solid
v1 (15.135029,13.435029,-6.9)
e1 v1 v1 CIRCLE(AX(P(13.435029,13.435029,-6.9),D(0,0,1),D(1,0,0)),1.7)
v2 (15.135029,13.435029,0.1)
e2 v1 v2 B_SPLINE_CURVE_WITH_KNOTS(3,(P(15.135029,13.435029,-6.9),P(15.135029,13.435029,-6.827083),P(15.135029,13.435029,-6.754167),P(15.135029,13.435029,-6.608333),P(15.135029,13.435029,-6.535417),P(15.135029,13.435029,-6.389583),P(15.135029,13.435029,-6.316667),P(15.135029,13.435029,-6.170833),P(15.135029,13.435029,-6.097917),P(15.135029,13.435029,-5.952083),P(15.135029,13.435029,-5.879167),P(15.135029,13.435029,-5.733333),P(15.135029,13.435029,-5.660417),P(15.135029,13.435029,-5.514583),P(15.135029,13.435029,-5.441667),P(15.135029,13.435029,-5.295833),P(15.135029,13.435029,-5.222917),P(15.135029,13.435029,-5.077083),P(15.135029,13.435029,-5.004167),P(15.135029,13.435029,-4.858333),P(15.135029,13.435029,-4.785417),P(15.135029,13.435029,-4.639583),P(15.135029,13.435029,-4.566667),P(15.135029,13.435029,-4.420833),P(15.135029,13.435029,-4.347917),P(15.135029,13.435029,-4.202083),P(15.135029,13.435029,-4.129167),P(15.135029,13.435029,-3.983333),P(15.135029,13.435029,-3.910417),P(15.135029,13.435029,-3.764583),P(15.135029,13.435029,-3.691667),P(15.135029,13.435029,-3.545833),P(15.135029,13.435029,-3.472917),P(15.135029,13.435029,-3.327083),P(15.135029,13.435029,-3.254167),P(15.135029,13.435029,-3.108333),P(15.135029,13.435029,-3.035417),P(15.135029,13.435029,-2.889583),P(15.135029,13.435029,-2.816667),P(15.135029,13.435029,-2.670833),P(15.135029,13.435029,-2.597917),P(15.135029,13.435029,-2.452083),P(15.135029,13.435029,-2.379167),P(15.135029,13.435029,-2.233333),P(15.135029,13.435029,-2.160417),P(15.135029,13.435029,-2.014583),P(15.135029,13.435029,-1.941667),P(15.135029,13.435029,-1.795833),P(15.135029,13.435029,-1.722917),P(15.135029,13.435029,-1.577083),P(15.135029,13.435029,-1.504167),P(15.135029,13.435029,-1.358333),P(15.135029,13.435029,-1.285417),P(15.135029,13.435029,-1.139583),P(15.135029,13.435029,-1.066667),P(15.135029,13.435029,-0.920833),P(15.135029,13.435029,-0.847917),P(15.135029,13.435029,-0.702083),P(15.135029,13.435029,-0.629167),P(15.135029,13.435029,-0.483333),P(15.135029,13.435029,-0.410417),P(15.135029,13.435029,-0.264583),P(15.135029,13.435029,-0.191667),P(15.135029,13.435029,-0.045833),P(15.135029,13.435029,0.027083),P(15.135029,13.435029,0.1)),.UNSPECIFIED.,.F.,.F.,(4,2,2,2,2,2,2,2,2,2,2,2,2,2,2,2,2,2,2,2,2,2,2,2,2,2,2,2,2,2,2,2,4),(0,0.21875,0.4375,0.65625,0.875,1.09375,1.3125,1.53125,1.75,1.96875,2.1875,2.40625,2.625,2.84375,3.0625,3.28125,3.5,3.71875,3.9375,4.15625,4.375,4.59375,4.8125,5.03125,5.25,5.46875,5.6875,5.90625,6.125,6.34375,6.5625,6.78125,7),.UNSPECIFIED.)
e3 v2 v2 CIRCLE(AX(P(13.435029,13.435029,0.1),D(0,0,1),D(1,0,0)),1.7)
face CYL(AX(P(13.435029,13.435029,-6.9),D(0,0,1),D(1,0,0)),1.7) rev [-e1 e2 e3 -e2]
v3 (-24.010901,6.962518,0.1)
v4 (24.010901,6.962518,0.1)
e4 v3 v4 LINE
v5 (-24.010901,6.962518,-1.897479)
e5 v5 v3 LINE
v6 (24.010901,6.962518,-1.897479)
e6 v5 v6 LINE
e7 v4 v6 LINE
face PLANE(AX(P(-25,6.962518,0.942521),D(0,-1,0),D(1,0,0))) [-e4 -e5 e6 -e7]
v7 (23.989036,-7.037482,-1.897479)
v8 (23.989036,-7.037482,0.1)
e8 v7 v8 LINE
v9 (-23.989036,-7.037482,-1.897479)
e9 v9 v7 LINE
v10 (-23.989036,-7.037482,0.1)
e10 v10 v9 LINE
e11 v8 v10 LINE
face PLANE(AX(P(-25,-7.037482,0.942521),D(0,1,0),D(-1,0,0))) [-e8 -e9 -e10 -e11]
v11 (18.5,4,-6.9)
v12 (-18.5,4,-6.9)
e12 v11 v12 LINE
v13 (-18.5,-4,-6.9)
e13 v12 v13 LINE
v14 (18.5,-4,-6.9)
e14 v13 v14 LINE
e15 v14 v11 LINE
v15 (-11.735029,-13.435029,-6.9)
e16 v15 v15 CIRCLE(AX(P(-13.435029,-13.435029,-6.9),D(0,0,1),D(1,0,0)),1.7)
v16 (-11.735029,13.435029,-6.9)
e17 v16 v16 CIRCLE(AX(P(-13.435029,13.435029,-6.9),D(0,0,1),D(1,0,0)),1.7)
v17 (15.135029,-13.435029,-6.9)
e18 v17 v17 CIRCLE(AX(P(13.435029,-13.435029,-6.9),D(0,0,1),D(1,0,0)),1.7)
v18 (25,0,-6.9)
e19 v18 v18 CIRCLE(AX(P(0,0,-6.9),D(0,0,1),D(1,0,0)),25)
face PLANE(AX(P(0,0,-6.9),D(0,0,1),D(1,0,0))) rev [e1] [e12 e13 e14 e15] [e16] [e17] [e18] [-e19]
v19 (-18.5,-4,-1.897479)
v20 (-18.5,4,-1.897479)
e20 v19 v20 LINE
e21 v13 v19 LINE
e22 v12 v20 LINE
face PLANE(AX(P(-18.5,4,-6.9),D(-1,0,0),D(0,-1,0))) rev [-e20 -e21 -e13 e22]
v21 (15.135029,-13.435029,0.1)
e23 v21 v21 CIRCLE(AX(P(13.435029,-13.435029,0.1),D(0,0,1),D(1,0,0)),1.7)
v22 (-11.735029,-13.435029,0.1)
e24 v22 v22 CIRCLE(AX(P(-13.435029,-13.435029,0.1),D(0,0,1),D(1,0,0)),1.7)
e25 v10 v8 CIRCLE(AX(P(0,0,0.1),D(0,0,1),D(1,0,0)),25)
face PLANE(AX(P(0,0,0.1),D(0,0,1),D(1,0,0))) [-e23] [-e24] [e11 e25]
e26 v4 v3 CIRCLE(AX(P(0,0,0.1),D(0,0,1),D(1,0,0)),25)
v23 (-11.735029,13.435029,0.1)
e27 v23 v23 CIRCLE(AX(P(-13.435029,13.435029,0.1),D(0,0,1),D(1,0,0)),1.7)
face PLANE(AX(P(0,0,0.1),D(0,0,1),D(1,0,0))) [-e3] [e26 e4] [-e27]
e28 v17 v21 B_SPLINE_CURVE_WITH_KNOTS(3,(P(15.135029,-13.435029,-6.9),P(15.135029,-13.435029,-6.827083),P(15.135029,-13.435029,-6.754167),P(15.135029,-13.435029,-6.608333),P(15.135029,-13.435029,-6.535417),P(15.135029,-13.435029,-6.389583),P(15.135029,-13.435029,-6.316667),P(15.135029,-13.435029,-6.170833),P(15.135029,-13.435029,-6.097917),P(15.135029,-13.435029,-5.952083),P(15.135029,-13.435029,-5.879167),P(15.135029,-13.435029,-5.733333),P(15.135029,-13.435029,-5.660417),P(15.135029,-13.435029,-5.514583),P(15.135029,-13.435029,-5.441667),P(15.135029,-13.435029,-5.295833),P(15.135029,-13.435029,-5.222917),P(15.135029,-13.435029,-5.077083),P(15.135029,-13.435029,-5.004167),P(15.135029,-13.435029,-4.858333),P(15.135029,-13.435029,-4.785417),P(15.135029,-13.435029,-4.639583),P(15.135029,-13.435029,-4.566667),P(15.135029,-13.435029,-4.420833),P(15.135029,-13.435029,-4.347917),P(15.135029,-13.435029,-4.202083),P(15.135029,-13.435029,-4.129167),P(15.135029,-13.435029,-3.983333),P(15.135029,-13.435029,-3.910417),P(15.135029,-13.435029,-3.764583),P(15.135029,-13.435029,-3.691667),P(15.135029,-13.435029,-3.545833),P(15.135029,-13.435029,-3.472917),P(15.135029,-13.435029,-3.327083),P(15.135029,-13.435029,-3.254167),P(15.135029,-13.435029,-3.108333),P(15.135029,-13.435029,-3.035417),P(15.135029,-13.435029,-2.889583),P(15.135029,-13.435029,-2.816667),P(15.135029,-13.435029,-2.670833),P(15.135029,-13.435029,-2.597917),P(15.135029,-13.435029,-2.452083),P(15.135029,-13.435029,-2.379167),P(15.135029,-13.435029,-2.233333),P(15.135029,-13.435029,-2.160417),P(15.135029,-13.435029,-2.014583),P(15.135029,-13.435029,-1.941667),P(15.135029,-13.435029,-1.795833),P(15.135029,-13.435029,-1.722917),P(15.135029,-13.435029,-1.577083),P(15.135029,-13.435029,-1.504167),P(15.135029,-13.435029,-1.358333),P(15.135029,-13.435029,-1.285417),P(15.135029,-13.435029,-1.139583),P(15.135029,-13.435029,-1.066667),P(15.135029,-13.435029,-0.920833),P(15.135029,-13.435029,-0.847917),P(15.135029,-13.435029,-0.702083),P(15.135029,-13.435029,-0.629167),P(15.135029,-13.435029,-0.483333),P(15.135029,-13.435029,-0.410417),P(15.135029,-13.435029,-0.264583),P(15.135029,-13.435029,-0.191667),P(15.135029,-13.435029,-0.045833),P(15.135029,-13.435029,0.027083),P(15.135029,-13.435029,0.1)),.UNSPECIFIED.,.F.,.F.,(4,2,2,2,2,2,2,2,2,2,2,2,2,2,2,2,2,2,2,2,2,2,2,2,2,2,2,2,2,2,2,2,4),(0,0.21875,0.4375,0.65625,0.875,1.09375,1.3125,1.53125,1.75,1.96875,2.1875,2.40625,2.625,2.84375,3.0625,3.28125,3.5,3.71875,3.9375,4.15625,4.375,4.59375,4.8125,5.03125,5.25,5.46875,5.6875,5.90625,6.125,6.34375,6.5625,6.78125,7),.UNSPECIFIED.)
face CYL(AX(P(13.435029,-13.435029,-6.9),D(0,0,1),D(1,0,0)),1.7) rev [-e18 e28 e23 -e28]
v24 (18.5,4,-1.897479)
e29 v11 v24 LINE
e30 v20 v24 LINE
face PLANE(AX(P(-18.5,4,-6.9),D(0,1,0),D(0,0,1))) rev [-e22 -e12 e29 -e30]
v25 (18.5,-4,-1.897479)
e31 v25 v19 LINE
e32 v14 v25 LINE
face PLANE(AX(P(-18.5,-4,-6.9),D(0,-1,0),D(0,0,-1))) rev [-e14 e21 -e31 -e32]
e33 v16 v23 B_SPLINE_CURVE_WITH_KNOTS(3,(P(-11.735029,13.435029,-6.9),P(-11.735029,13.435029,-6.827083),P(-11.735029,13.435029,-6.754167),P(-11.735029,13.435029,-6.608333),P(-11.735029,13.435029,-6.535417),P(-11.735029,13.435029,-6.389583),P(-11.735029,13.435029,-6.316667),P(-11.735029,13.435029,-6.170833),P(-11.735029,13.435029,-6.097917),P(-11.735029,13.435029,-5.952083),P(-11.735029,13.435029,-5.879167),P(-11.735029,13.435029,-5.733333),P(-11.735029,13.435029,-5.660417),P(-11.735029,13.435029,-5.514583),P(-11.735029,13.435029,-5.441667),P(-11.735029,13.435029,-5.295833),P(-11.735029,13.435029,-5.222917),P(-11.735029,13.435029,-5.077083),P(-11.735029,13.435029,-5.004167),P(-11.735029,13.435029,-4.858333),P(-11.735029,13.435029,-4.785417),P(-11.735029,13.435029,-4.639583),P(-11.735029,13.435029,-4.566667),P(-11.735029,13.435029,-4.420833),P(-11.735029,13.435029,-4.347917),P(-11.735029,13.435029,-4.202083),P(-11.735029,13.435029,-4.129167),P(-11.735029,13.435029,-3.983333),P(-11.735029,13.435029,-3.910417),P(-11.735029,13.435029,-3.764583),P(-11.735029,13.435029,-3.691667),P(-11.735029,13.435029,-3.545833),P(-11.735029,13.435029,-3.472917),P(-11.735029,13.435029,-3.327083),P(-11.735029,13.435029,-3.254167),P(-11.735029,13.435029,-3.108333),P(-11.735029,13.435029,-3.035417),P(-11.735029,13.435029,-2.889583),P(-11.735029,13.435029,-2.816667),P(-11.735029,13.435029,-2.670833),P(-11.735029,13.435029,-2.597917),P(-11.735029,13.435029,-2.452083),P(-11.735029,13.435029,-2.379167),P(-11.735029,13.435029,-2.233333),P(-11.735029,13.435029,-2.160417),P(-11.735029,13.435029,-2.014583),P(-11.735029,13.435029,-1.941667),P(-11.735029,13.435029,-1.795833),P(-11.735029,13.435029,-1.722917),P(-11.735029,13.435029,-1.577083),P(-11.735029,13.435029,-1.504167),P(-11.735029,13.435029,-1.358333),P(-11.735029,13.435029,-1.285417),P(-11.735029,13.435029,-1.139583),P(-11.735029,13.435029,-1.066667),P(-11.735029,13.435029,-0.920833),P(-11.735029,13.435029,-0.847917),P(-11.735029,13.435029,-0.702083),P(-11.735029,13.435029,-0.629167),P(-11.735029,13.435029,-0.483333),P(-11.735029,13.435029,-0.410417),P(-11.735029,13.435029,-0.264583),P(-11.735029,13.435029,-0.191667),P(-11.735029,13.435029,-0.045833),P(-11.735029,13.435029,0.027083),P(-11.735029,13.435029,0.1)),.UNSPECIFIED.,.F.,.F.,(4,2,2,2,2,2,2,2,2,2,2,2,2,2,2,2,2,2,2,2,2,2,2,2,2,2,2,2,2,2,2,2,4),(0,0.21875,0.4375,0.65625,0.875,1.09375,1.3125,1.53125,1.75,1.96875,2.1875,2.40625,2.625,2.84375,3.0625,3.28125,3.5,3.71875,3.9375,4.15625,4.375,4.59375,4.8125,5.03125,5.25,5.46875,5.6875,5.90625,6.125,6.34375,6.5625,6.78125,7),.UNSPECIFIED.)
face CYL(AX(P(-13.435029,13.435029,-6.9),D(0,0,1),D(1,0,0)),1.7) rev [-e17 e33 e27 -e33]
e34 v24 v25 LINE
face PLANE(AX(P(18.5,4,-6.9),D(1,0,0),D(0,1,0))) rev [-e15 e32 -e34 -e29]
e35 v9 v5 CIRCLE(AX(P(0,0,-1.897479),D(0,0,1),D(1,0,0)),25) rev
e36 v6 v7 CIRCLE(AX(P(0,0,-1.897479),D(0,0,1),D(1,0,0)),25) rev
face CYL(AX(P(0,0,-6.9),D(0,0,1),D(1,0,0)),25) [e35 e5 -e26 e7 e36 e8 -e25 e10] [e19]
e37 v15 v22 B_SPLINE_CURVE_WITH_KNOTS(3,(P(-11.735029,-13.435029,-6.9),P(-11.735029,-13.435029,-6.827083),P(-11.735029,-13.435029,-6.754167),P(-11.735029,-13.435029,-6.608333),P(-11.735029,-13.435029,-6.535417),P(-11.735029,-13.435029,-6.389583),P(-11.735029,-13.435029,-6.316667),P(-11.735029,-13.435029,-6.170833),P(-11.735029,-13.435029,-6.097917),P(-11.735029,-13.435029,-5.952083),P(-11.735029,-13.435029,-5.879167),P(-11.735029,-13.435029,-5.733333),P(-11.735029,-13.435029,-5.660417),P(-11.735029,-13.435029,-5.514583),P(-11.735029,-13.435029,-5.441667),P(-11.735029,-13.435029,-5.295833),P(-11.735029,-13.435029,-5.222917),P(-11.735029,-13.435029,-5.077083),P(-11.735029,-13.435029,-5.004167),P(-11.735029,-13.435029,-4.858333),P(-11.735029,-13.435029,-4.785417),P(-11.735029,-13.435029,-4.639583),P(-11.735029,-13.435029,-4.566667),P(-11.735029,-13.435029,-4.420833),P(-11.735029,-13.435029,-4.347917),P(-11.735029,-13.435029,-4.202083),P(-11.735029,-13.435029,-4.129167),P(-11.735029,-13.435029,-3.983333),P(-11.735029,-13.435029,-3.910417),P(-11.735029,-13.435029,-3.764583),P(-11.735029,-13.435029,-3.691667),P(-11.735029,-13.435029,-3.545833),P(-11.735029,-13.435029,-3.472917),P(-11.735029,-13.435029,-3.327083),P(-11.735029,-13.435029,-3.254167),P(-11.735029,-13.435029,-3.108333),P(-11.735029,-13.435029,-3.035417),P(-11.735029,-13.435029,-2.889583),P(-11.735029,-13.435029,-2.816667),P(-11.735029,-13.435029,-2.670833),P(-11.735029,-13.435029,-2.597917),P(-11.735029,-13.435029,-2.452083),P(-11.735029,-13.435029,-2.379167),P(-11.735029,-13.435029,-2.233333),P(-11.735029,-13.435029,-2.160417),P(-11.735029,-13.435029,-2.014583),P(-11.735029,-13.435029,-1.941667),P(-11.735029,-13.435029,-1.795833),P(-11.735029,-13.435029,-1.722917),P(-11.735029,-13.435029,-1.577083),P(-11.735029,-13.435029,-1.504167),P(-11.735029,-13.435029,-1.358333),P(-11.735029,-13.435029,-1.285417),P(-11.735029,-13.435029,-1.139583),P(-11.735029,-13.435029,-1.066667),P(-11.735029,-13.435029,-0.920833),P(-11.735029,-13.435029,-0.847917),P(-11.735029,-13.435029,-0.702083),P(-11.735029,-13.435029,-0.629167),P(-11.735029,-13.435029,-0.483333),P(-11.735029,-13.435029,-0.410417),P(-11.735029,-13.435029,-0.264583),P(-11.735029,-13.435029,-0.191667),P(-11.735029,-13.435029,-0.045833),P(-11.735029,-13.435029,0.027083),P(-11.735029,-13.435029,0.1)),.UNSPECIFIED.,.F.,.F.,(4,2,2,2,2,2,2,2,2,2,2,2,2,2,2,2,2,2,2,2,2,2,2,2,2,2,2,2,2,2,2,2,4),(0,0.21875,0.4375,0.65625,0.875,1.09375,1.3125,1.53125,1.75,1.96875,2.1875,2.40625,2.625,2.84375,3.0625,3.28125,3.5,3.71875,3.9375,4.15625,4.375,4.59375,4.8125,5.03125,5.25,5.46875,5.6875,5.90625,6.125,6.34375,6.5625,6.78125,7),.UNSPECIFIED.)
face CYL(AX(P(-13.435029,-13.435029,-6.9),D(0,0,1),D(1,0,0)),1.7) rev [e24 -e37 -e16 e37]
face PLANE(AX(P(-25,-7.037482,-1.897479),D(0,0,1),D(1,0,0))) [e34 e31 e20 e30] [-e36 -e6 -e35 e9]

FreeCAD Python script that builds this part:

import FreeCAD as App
import Part
import Sketcher
Q = App.Units.Quantity


def add_polygon(sketch, points):
    """Adds a closed chain of lines whose ends are joined by coincident constraints."""
    first, n = sketch.GeometryCount, len(points)
    for a, b in zip(points, points[1:] + points[:1]):
        sketch.addGeometry(Part.LineSegment(App.Vector(*a, 0), App.Vector(*b, 0)), False)
    for i in range(n):
        sketch.addConstraint(Sketcher.Constraint("Coincident", first + i, 2, first + (i + 1) % n, 1))

doc = App.newDocument("Part")
body = doc.addObject("PartDesign::Body", "Body")

# Sketch on XY plane
sketch1 = body.newObject("Sketcher::SketchObject", "Sketch")
sketch1.AttachmentSupport = (doc.getObject("XY_Plane"), [""])
sketch1.MapMode = "FlatFace"
sketch1.addGeometry([
    Part.Circle(App.Vector(0, 0, 0), App.Vector(0, 0, 1), 25),  # 0
    Part.Circle(App.Vector(-13.435029, -13.435029, 0), App.Vector(0, 0, 1), 1.7),  # 1
    Part.Circle(App.Vector(13.435029, -13.435029, 0), App.Vector(0, 0, 1), 1.7),  # 2
    Part.Circle(App.Vector(-13.435029, 13.435029, 0), App.Vector(0, 0, 1), 1.7),  # 3
    Part.Circle(App.Vector(13.435029, 13.435029, 0), App.Vector(0, 0, 1), 1.7),  # 4
], False)
sketch1.addConstraint([
    Sketcher.Constraint("Coincident", 0, 3, -1, 1),
    Sketcher.Constraint("Equal", 1, 2),
    Sketcher.Constraint("Equal", 2, 3),
    Sketcher.Constraint("Equal", 3, 4),
    Sketcher.Constraint("Symmetric", 2, 3, 3, 3, -1, 1),
    Sketcher.Constraint("Symmetric", 1, 3, 4, 3, -1, 1),
    Sketcher.Constraint("Symmetric", 1, 3, 2, 3, -2),
    Sketcher.Constraint("Diameter", 0, Q("50 mm")),
    Sketcher.Constraint("Diameter", 1, Q("3.4 mm")),
    Sketcher.Constraint("DistanceX", 1, 3, -1, 1, Q("13.435029 mm")),
    Sketcher.Constraint("DistanceY", 1, 3, -1, 1, Q("13.435029 mm")),
])
pad1 = body.newObject("PartDesign::Pad", "Pad")
pad1.Profile = sketch1
pad1.Type = "TwoLengths"
pad1.Length = 0.1
pad1.Length2 = 6.9

# Sketch on XY plane
sketch2 = body.newObject("Sketcher::SketchObject", "Sketch001")
sketch2.AttachmentSupport = (doc.getObject("XY_Plane"), [""])
sketch2.MapMode = "FlatFace"
sketch2.AttachmentOffset = App.Placement(App.Vector(0, 0, 0.1), App.Rotation())
add_polygon(sketch2, [(-18.5, 4), (-18.5, -4), (18.5, -4), (18.5, 4)])  # lines 0-3
sketch2.addConstraint([
    Sketcher.Constraint("Vertical", 0),
    Sketcher.Constraint("Horizontal", 1),
    Sketcher.Constraint("Vertical", 2),
    Sketcher.Constraint("Horizontal", 3),
    Sketcher.Constraint("Symmetric", 0, 2, 2, 2, -1, 1),
    Sketcher.Constraint("DistanceX", 1, 1, 1, 2, Q("37 mm")),
    Sketcher.Constraint("DistanceY", 0, 2, 0, 1, Q("8 mm")),
])
pocket1 = body.newObject("PartDesign::Pocket", "Pocket")
pocket1.Profile = sketch2
pocket1.Type = "ThroughAll"

# Sketch on YZ plane
sketch3 = body.newObject("Sketcher::SketchObject", "Sketch002")
sketch3.AttachmentSupport = (doc.getObject("YZ_Plane"), [""])
sketch3.MapMode = "FlatFace"
sketch3.AttachmentOffset = App.Placement(App.Vector(0, 0, 18.5), App.Rotation())
add_polygon(sketch3, [(6.962518, -1.897479), (-7.037482, -1.897479), (-7.037482, 0.942521), (6.962518, 0.942521)])  # lines 0-3
sketch3.addConstraint([
    Sketcher.Constraint("Horizontal", 0),
    Sketcher.Constraint("Vertical", 1),
    Sketcher.Constraint("Horizontal", 2),
    Sketcher.Constraint("Vertical", 3),
    Sketcher.Constraint("DistanceX", 0, 2, 0, 1, Q("14 mm")),
    Sketcher.Constraint("DistanceY", 1, 1, 1, 2, Q("2.84 mm")),
    Sketcher.Constraint("DistanceY", 0, 2, -1, 1, Q("1.897479 mm")),
    Sketcher.Constraint("DistanceX", 0, 2, -1, 1, Q("7.037482 mm")),
])
pocket2 = body.newObject("PartDesign::Pocket", "Pocket001")
pocket2.Profile = sketch3
pocket2.Type = "ThroughAll"
pocket2.Midplane = True

doc.recompute()
